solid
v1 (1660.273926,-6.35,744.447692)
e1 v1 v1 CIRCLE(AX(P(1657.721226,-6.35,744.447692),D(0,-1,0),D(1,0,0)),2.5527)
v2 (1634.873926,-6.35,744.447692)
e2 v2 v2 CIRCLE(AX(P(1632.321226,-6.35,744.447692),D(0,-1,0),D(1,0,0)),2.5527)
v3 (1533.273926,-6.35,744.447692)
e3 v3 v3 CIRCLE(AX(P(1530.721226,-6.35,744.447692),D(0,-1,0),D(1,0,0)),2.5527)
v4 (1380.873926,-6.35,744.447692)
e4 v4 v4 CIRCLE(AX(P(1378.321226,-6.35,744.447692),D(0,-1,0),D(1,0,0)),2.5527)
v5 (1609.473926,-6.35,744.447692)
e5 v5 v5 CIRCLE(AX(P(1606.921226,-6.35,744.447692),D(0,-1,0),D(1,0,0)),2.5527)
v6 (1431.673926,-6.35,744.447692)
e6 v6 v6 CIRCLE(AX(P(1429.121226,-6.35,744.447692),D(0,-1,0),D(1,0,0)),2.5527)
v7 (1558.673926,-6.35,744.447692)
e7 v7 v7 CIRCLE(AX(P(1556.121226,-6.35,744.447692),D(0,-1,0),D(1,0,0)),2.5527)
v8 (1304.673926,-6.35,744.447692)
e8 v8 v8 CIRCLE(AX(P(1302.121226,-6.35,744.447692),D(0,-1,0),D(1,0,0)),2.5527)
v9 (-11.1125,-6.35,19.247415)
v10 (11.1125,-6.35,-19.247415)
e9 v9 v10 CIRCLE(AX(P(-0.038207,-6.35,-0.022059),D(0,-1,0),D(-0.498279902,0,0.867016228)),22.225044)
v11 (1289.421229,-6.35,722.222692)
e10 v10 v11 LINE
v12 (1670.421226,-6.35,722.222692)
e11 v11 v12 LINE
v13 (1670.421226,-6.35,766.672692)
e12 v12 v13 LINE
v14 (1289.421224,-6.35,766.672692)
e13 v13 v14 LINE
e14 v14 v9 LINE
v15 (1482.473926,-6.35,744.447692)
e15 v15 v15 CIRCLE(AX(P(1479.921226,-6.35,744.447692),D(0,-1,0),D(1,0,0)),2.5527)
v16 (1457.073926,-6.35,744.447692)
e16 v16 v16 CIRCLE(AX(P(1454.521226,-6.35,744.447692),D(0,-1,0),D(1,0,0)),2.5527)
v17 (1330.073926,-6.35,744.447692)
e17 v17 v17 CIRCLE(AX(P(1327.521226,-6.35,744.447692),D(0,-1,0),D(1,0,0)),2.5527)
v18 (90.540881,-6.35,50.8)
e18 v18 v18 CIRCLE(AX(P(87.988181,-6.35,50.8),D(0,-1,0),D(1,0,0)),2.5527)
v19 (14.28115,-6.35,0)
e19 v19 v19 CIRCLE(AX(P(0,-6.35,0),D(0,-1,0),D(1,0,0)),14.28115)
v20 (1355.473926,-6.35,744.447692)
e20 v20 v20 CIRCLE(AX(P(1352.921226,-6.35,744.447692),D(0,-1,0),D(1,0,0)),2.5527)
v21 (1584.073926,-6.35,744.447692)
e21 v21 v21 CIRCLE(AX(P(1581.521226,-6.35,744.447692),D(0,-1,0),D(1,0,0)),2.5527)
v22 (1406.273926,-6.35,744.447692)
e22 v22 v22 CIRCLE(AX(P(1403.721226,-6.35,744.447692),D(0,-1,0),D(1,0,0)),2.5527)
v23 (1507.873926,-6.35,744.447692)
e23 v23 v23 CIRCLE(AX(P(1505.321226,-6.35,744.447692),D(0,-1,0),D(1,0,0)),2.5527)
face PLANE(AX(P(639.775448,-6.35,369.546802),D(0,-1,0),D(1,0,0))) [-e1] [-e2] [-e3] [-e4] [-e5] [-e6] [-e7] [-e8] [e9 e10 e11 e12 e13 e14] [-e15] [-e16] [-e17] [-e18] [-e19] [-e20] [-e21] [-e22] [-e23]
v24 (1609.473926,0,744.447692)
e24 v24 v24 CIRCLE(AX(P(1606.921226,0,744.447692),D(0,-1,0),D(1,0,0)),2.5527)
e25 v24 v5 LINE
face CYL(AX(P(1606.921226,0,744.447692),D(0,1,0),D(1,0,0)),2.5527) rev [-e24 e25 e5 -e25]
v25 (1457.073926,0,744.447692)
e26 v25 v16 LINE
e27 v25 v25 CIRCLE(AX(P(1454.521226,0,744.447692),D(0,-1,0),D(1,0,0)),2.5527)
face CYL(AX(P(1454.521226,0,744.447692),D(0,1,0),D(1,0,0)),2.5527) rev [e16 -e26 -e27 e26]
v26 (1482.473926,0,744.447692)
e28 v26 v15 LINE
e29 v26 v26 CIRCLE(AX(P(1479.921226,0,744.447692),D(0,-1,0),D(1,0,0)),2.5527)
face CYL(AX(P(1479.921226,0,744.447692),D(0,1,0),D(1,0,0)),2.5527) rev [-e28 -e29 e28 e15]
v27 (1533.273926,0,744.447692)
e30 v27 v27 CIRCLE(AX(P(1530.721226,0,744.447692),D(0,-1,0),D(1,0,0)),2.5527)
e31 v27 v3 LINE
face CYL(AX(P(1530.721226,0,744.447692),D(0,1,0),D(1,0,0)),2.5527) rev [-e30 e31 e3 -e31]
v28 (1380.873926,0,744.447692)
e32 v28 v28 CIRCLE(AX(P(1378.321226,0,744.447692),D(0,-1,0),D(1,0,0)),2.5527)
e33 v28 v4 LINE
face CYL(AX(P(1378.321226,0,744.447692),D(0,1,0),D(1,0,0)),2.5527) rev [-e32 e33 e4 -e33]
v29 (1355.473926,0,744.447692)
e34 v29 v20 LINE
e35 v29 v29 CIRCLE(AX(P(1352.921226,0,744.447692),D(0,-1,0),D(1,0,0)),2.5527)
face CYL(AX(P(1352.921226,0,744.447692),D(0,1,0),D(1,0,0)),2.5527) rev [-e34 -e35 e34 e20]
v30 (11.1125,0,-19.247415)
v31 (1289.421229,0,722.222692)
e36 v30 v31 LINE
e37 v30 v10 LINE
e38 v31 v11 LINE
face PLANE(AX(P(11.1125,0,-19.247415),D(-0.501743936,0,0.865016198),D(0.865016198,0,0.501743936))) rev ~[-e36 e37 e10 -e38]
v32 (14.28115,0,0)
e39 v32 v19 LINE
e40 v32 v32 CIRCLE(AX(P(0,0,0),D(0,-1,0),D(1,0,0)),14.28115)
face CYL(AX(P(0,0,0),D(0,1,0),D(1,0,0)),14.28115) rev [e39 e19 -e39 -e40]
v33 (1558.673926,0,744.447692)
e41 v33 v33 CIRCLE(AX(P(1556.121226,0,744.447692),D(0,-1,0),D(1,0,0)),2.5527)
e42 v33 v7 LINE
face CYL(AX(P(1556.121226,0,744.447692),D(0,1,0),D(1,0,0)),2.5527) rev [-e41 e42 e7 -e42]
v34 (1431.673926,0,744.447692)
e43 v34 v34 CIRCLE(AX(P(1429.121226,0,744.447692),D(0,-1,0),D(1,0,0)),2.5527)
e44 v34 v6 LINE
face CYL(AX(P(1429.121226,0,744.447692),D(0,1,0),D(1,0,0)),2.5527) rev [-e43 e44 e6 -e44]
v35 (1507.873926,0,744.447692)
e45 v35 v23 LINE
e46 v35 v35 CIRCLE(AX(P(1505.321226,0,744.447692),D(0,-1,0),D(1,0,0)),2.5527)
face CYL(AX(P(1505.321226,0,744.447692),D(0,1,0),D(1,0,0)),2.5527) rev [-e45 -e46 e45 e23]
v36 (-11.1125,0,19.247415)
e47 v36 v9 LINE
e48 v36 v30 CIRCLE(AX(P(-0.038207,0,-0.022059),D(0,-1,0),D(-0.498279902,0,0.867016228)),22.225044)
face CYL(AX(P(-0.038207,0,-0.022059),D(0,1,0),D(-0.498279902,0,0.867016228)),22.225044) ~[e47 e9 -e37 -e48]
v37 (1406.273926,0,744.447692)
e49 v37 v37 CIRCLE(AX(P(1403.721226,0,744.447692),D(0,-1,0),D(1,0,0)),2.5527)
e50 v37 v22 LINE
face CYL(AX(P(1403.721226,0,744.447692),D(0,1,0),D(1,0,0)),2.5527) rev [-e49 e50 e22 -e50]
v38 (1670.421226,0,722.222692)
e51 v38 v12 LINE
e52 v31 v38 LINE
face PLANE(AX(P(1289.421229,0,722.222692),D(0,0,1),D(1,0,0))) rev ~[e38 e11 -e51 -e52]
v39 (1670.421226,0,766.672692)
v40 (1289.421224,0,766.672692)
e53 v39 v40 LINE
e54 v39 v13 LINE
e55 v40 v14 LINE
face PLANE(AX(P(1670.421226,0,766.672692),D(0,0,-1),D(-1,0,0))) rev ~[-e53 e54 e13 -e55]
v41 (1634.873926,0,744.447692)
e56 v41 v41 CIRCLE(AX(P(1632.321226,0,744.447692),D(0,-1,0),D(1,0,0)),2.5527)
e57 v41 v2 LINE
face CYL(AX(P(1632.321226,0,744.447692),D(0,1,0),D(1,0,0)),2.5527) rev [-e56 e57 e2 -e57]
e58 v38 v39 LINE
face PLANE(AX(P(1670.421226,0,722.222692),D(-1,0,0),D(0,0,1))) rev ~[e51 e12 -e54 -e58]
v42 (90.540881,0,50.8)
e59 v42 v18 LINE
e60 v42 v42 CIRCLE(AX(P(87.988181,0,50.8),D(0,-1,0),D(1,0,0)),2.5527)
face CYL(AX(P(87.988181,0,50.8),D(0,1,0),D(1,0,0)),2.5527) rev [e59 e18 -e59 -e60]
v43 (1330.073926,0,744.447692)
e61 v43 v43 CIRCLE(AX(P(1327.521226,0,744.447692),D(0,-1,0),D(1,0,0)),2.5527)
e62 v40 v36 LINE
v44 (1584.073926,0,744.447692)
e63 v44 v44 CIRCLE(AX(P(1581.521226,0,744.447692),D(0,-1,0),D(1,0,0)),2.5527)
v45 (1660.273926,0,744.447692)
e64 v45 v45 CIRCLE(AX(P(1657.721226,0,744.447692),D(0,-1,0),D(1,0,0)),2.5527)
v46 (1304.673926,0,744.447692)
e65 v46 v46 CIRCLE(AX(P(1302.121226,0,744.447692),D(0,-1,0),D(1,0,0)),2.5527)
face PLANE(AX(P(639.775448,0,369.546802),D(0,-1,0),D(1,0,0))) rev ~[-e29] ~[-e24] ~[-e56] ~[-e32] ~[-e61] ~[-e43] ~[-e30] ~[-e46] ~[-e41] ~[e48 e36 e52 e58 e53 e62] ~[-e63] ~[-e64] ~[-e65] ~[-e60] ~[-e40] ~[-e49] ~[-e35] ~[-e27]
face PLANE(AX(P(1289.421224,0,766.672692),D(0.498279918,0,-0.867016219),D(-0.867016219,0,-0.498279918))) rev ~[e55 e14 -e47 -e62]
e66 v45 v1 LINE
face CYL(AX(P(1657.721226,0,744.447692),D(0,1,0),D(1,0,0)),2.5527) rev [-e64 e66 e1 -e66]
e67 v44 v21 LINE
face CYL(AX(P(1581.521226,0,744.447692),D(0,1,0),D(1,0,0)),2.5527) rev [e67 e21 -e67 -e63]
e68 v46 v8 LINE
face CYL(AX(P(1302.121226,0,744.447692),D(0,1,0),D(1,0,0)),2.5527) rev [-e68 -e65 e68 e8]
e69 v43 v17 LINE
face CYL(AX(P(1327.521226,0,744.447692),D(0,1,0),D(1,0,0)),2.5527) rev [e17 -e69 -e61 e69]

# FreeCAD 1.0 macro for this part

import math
import FreeCAD as App
import Part
import Sketcher
Q = App.Units.Quantity

doc = App.newDocument("Part")
params = doc.addObject("Spreadsheet::Sheet", "Params")
for row, (alias, value) in enumerate([
    ("sketch1_width", "14.9999999 in"),
    ("sketch1_width2", "15.0000001 in"),
    ("sketch1_diameter", "0.201 in"),
    ("sketch1_height", "1.75 in"),
    ("pad1_length", "0.25 in"),
], start=1):
    params.set(f"A{row}", alias)
    params.set(f"B{row}", "=" + value)
    params.setAlias(f"B{row}", alias)

body = doc.addObject("PartDesign::Body", "Body")

# Sketch on XZ plane
sketch1 = doc.addObject("Sketcher::SketchObject", "Sketch")
body.addObject(sketch1)
sketch1.AttachmentSupport = (doc.XZ_Plane, [""])
sketch1.MapMode = "FlatFace"
sketch1.addGeometry([
    Part.LineSegment(App.Vector(1289.4, 766.7, 0), App.Vector(-11.1, 19.2, 0)),  # 0
    Part.ArcOfCircle(Part.Circle(App.Vector(0, 0, 0), App.Vector(0, 0, 1), 22.2), math.radians(120), math.radians(300)),  # 1
    Part.LineSegment(App.Vector(11.1, -19.2, 0), App.Vector(1289.4, 722.2, 0)),  # 2
    Part.LineSegment(App.Vector(1289.4, 722.2, 0), App.Vector(1670.4, 722.2, 0)),  # 3
    Part.LineSegment(App.Vector(1670.4, 722.2, 0), App.Vector(1670.4, 766.7, 0)),  # 4
    Part.LineSegment(App.Vector(1670.4, 766.7, 0), App.Vector(1289.4, 766.7, 0)),  # 5
    Part.Circle(App.Vector(0, 0, 0), App.Vector(0, 0, 1), 14.3),  # 6
    Part.Circle(App.Vector(88, 50.8, 0), App.Vector(0, 0, 1), 2.6),  # 7
    Part.Circle(App.Vector(1302.1, 744.4, 0), App.Vector(0, 0, 1), 2.6),  # 8
    Part.Circle(App.Vector(1327.5, 744.4, 0), App.Vector(0, 0, 1), 2.6),  # 9
    Part.Circle(App.Vector(1352.9, 744.4, 0), App.Vector(0, 0, 1), 2.6),  # 10
    Part.Circle(App.Vector(1378.3, 744.4, 0), App.Vector(0, 0, 1), 2.6),  # 11
    Part.Circle(App.Vector(1403.7, 744.4, 0), App.Vector(0, 0, 1), 2.6),  # 12
    Part.Circle(App.Vector(1429.1, 744.4, 0), App.Vector(0, 0, 1), 2.6),  # 13
    Part.Circle(App.Vector(1454.5, 744.4, 0), App.Vector(0, 0, 1), 2.6),  # 14
    Part.Circle(App.Vector(1479.9, 744.4, 0), App.Vector(0, 0, 1), 2.6),  # 15
    Part.Circle(App.Vector(1505.3, 744.4, 0), App.Vector(0, 0, 1), 2.6),  # 16
    Part.Circle(App.Vector(1530.7, 744.4, 0), App.Vector(0, 0, 1), 2.6),  # 17
    Part.Circle(App.Vector(1556.1, 744.4, 0), App.Vector(0, 0, 1), 2.6),  # 18
    Part.Circle(App.Vector(1581.5, 744.4, 0), App.Vector(0, 0, 1), 2.6),  # 19
    Part.Circle(App.Vector(1606.9, 744.4, 0), App.Vector(0, 0, 1), 2.6),  # 20
    Part.Circle(App.Vector(1632.3, 744.4, 0), App.Vector(0, 0, 1), 2.6),  # 21
    Part.Circle(App.Vector(1657.7, 744.4, 0), App.Vector(0, 0, 1), 2.6),  # 22
], False)
sketch1.addConstraint([
    Sketcher.Constraint("Tangent", 0, 2, 1, 1),
    Sketcher.Constraint("Coincident", 1, 2, 2, 1),
    Sketcher.Constraint("Coincident", 2, 2, 3, 1),
    Sketcher.Constraint("Coincident", 3, 2, 4, 1),
    Sketcher.Constraint("Coincident", 4, 2, 5, 1),
    Sketcher.Constraint("Coincident", 5, 2, 0, 1),
    Sketcher.Constraint("Horizontal", 3),
    Sketcher.Constraint("Vertical", 4),
    Sketcher.Constraint("Horizontal", 5),
    Sketcher.Constraint("Coincident", 6, 3, -1, 1),
    Sketcher.Constraint("Equal", 7, 8),
    Sketcher.Constraint("Equal", 8, 9),
    Sketcher.Constraint("Equal", 9, 10),
    Sketcher.Constraint("Equal", 10, 11),
    Sketcher.Constraint("Equal", 11, 12),
    Sketcher.Constraint("Equal", 12, 13),
    Sketcher.Constraint("Equal", 13, 14),
    Sketcher.Constraint("Equal", 14, 15),
    Sketcher.Constraint("Equal", 15, 16),
    Sketcher.Constraint("Equal", 16, 17),
    Sketcher.Constraint("Equal", 17, 18),
    Sketcher.Constraint("Equal", 18, 19),
    Sketcher.Constraint("Equal", 19, 20),
    Sketcher.Constraint("Equal", 20, 21),
    Sketcher.Constraint("Equal", 21, 22),
    Sketcher.Constraint("Symmetric", 0, 2, 1, 2, -1, 1),
    Sketcher.Constraint("Horizontal", 8, 3, 9, 3),
    Sketcher.Constraint("Horizontal", 9, 3, 10, 3),
    Sketcher.Constraint("Horizontal", 10, 3, 11, 3),
    Sketcher.Constraint("Horizontal", 11, 3, 12, 3),
    Sketcher.Constraint("Horizontal", 12, 3, 13, 3),
    Sketcher.Constraint("Horizontal", 13, 3, 14, 3),
    Sketcher.Constraint("Horizontal", 14, 3, 15, 3),
    Sketcher.Constraint("Horizontal", 15, 3, 16, 3),
    Sketcher.Constraint("Horizontal", 16, 3, 17, 3),
    Sketcher.Constraint("Horizontal", 17, 3, 18, 3),
    Sketcher.Constraint("Horizontal", 18, 3, 19, 3),
    Sketcher.Constraint("Horizontal", 19, 3, 20, 3),
    Sketcher.Constraint("Horizontal", 20, 3, 21, 3),
    Sketcher.Constraint("Horizontal", 21, 3, 22, 3),
    Sketcher.Constraint("DistanceX", 3, 1, 3, 2, Q("14.9999999 in")),
    Sketcher.Constraint("DistanceX", 5, 2, 5, 1, Q("15.0000001 in")),
    Sketcher.Constraint("Diameter", 7, Q("0.201 in")),
    Sketcher.Constraint("DistanceY", -1, 1, 7, 3, Q("2 in")),
    Sketcher.Constraint("DistanceX", 8, 3, 9, 3, Q("1 in")),
    Sketcher.Constraint("DistanceX", 9, 3, 10, 3, Q("1 in")),
    Sketcher.Constraint("DistanceX", 10, 3, 11, 3, Q("1 in")),
    Sketcher.Constraint("DistanceX", 11, 3, 12, 3, Q("1 in")),
    Sketcher.Constraint("DistanceX", 12, 3, 13, 3, Q("1 in")),
    Sketcher.Constraint("DistanceX", 13, 3, 14, 3, Q("1 in")),
    Sketcher.Constraint("DistanceX", 14, 3, 15, 3, Q("1 in")),
    Sketcher.Constraint("DistanceX", 15, 3, 16, 3, Q("1 in")),
    Sketcher.Constraint("DistanceX", 16, 3, 17, 3, Q("1 in")),
    Sketcher.Constraint("DistanceX", 17, 3, 18, 3, Q("1 in")),
    Sketcher.Constraint("DistanceX", 18, 3, 19, 3, Q("1 in")),
    Sketcher.Constraint("DistanceX", 19, 3, 20, 3, Q("1 in")),
    Sketcher.Constraint("DistanceX", 20, 3, 21, 3, Q("1 in")),
    Sketcher.Constraint("DistanceX", 21, 3, 22, 3, Q("1 in")),
    Sketcher.Constraint("Diameter", 6, Q("1.1245 in")),
    Sketcher.Constraint("DistanceY", 4, 1, 4, 2, Q("1.75 in")),
    Sketcher.Constraint("DistanceX", 2, 2, 8, 3, Q("0.4999999 in")),
    Sketcher.Constraint("DistanceX", 0, 2, -1, 1, Q("0.4375 in")),
    Sketcher.Constraint("DistanceY", 2, 2, 8, 3, Q("0.875 in")),
    Sketcher.Constraint("Radius", 1, 22.225044),
    Sketcher.Constraint("DistanceX", -1, 1, 7, 3, 87.988181),
    Sketcher.Constraint("DistanceY", -1, 1, 8, 3, 744.447692),
    Sketcher.Constraint("DistanceX", -1, 1, 2, 2, 1289.421229),
])
sketch1.setExpression("Constraints[40]", "Params.sketch1_width")
sketch1.setExpression("Constraints[41]", "Params.sketch1_width2")
sketch1.setExpression("Constraints[42]", "Params.sketch1_diameter")
sketch1.setExpression("Constraints[59]", "Params.sketch1_height")
pad1 = doc.addObject("PartDesign::Pad", "Pad")
body.addObject(pad1)
pad1.Profile = sketch1
pad1.setExpression("Length", "Params.pad1_length")

doc.recompute()
